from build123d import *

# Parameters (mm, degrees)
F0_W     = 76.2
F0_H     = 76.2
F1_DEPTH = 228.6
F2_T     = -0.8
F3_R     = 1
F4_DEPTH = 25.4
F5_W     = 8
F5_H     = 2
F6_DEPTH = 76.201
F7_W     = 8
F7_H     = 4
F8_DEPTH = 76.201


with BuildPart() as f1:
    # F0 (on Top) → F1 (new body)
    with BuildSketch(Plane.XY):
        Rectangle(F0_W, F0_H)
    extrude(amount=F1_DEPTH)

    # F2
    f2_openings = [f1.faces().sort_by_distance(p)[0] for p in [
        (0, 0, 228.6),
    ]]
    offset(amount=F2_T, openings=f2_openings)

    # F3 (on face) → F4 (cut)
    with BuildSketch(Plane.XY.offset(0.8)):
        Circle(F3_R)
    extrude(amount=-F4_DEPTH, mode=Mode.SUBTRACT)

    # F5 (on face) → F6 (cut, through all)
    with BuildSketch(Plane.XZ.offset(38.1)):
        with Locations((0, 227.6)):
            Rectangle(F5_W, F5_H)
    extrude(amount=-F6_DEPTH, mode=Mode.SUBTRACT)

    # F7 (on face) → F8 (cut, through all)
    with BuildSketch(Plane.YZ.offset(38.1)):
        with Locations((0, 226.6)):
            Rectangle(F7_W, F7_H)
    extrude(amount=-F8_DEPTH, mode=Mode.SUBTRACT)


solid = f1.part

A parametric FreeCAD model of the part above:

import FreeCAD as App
import Part
import Sketcher
from FreeCAD import Vector


def faces_at(feature, points):
    """Names of the faces that lie closest to the given points."""
    faces = feature.Shape.Faces
    near = lambda p: min(range(len(faces)), key=lambda i: faces[i].distToShape(Part.Vertex(*p))[0])
    return sorted({f"Face{near(p) + 1}" for p in points})

doc = App.newDocument("Part")
params = doc.addObject("Spreadsheet::Sheet", "Params")
for row, (alias, value) in enumerate([
    ("sketch1_width", "76.2 mm"),
    ("pad1_length", "228.6 mm"),
    ("thickness_wall", "0.8 mm"),
    ("sketch2_diameter", "2 mm"),
    ("pocket1_length", "25.4 mm"),
    ("sketch3_width", "8 mm"),
    ("sketch3_height", "2 mm"),
    ("sketch4_width", "8 mm"),
    ("sketch4_height", "4 mm"),
], start=1):
    params.set(f"A{row}", alias)
    params.set(f"B{row}", "=" + value)
    params.setAlias(f"B{row}", alias)

body = doc.addObject("PartDesign::Body", "Body")

# Sketch on XY plane
sketch1 = body.newObject("Sketcher::SketchObject", "Sketch")
sketch1.AttachmentSupport = (doc.getObject("XY_Plane"), [""])
sketch1.MapMode = "FlatFace"
sketch1.addGeometry(Part.LineSegment(Vector(-38, 38, 0), Vector(-38, -38, 0)), False)
sketch1.addGeometry(Part.LineSegment(Vector(-38, -38, 0), Vector(38, -38, 0)), False)
sketch1.addGeometry(Part.LineSegment(Vector(38, -38, 0), Vector(38, 38, 0)), False)
sketch1.addGeometry(Part.LineSegment(Vector(38, 38, 0), Vector(-38, 38, 0)), False)
sketch1.addConstraint(Sketcher.Constraint("Coincident", 0, 2, 1, 1))
sketch1.addConstraint(Sketcher.Constraint("Coincident", 1, 2, 2, 1))
sketch1.addConstraint(Sketcher.Constraint("Coincident", 2, 2, 3, 1))
sketch1.addConstraint(Sketcher.Constraint("Coincident", 3, 2, 0, 1))
sketch1.addConstraint(Sketcher.Constraint("Vertical", 0))
sketch1.addConstraint(Sketcher.Constraint("Horizontal", 1))
sketch1.addConstraint(Sketcher.Constraint("Vertical", 2))
sketch1.addConstraint(Sketcher.Constraint("Horizontal", 3))
sketch1.addConstraint(Sketcher.Constraint("Symmetric", 0, 2, 2, 2, -1, 1))
sketch1.addConstraint(Sketcher.Constraint("Equal", 3, 0))
sketch1.addConstraint(Sketcher.Constraint("DistanceX", 1, 1, 1, 2, 76.2))
sketch1.setExpression("Constraints[10]", "Params.sketch1_width")
pad1 = body.newObject("PartDesign::Pad", "Pad")
pad1.Profile = sketch1
pad1.setExpression("Length", "Params.pad1_length")
doc.recompute()

thickness = body.newObject("PartDesign::Thickness", "Thickness")
thickness.Base = (pad1, faces_at(pad1, [(0, 0, 228.6)]))
thickness.setExpression("Value", "Params.thickness_wall")
thickness.Reversed = True
thickness.Join = "Arc"

# Sketch on XY plane
sketch2 = body.newObject("Sketcher::SketchObject", "Sketch001")
sketch2.AttachmentSupport = (doc.getObject("XY_Plane"), [""])
sketch2.MapMode = "FlatFace"
sketch2.AttachmentOffset = App.Placement(Vector(0, 0, 0.8), App.Rotation())
sketch2.addGeometry(Part.Circle(Vector(0, 0, 0), Vector(0, 0, 1), 1), False)
sketch2.addConstraint(Sketcher.Constraint("Coincident", 0, 3, -1, 1))
sketch2.addConstraint(Sketcher.Constraint("Diameter", 0, 2.0))
sketch2.setExpression("Constraints[1]", "Params.sketch2_diameter")
pocket1 = body.newObject("PartDesign::Pocket", "Pocket")
pocket1.Profile = sketch2
pocket1.setExpression("Length", "Params.pocket1_length")

# Sketch on XZ plane
sketch3 = body.newObject("Sketcher::SketchObject", "Sketch002")
sketch3.AttachmentSupport = (doc.getObject("XZ_Plane"), [""])
sketch3.MapMode = "FlatFace"
sketch3.AttachmentOffset = App.Placement(Vector(0, 0, 38.1), App.Rotation())
sketch3.addGeometry(Part.LineSegment(Vector(-4, 228.6, 0), Vector(-4, 226.6, 0)), False)
sketch3.addGeometry(Part.LineSegment(Vector(-4, 226.6, 0), Vector(4, 226.6, 0)), False)
sketch3.addGeometry(Part.LineSegment(Vector(4, 226.6, 0), Vector(4, 228.6, 0)), False)
sketch3.addGeometry(Part.LineSegment(Vector(4, 228.6, 0), Vector(-4, 228.6, 0)), False)
sketch3.addConstraint(Sketcher.Constraint("Coincident", 0, 2, 1, 1))
sketch3.addConstraint(Sketcher.Constraint("Coincident", 1, 2, 2, 1))
sketch3.addConstraint(Sketcher.Constraint("Coincident", 2, 2, 3, 1))
sketch3.addConstraint(Sketcher.Constraint("Coincident", 3, 2, 0, 1))
sketch3.addConstraint(Sketcher.Constraint("Vertical", 0))
sketch3.addConstraint(Sketcher.Constraint("Horizontal", 1))
sketch3.addConstraint(Sketcher.Constraint("Vertical", 2))
sketch3.addConstraint(Sketcher.Constraint("Horizontal", 3))
sketch3.addConstraint(Sketcher.Constraint("DistanceX", 1, 1, 1, 2, 8.0))
sketch3.addConstraint(Sketcher.Constraint("DistanceY", 0, 2, 0, 1, 2.0))
sketch3.addConstraint(Sketcher.Constraint("DistanceX", 0, 2, -1, 1, 4.0))
sketch3.addConstraint(Sketcher.Constraint("DistanceY", -1, 1, 0, 2, 226.6))
sketch3.setExpression("Constraints[8]", "Params.sketch3_width")
sketch3.setExpression("Constraints[9]", "Params.sketch3_height")
pocket2 = body.newObject("PartDesign::Pocket", "Pocket001")
pocket2.Profile = sketch3
pocket2.Type = "ThroughAll"

# Sketch on YZ plane
sketch4 = body.newObject("Sketcher::SketchObject", "Sketch003")
sketch4.AttachmentSupport = (doc.getObject("YZ_Plane"), [""])
sketch4.MapMode = "FlatFace"
sketch4.AttachmentOffset = App.Placement(Vector(0, 0, 38.1), App.Rotation())
sketch4.addGeometry(Part.LineSegment(Vector(-4, 228.6, 0), Vector(-4, 224.6, 0)), False)
sketch4.addGeometry(Part.LineSegment(Vector(-4, 224.6, 0), Vector(4, 224.6, 0)), False)
sketch4.addGeometry(Part.LineSegment(Vector(4, 224.6, 0), Vector(4, 228.6, 0)), False)
sketch4.addGeometry(Part.LineSegment(Vector(4, 228.6, 0), Vector(-4, 228.6, 0)), False)
sketch4.addConstraint(Sketcher.Constraint("Coincident", 0, 2, 1, 1))
sketch4.addConstraint(Sketcher.Constraint("Coincident", 1, 2, 2, 1))
sketch4.addConstraint(Sketcher.Constraint("Coincident", 2, 2, 3, 1))
sketch4.addConstraint(Sketcher.Constraint("Coincident", 3, 2, 0, 1))
sketch4.addConstraint(Sketcher.Constraint("Vertical", 0))
sketch4.addConstraint(Sketcher.Constraint("Horizontal", 1))
sketch4.addConstraint(Sketcher.Constraint("Vertical", 2))
sketch4.addConstraint(Sketcher.Constraint("Horizontal", 3))
sketch4.addConstraint(Sketcher.Constraint("DistanceX", 1, 1, 1, 2, 8.0))
sketch4.addConstraint(Sketcher.Constraint("DistanceY", 0, 2, 0, 1, 4.0))
sketch4.addConstraint(Sketcher.Constraint("DistanceX", 0, 2, -1, 1, 4.0))
sketch4.addConstraint(Sketcher.Constraint("DistanceY", -1, 1, 0, 2, 224.6))
sketch4.setExpression("Constraints[8]", "Params.sketch4_width")
sketch4.setExpression("Constraints[9]", "Params.sketch4_height")
pocket3 = body.newObject("PartDesign::Pocket", "Pocket002")
pocket3.Profile = sketch4
pocket3.Type = "ThroughAll"

doc.recompute()
